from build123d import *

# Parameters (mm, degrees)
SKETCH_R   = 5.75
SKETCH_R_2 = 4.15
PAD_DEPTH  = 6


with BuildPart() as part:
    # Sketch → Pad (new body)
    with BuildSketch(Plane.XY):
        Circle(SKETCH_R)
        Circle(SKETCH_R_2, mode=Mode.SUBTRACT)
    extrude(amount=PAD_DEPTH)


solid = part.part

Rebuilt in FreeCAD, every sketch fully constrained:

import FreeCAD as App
import Part
import Sketcher
from FreeCAD import Vector

doc = App.newDocument("Part")
params = doc.addObject("Spreadsheet::Sheet", "Params")
for row, (alias, value) in enumerate([
    ("sketch1_diameter", "11.5 mm"),
    ("sketch1_diameter2", "8.3 mm"),
    ("pad1_length", "6 mm"),
], start=1):
    params.set(f"A{row}", alias)
    params.set(f"B{row}", "=" + value)
    params.setAlias(f"B{row}", alias)

body = doc.addObject("PartDesign::Body", "Body")

# Sketch on XY plane
sketch1 = body.newObject("Sketcher::SketchObject", "Sketch")
sketch1.AttachmentSupport = (doc.getObject("XY_Plane"), [""])
sketch1.MapMode = "FlatFace"
sketch1.addGeometry([
    Part.Circle(Vector(0, 0, 0), Vector(0, 0, 1), 5.8),
    Part.Circle(Vector(0, 0, 0), Vector(0, 0, 1), 4.2),
], False)
sketch1.addConstraint([
    Sketcher.Constraint("Coincident", 0, 3, -1, 1),
    Sketcher.Constraint("Coincident", 1, 3, -1, 1),
    Sketcher.Constraint("Diameter", 0, 11.5),
    Sketcher.Constraint("Diameter", 1, 8.3),
])
sketch1.setExpression("Constraints[2]", "Params.sketch1_diameter")
sketch1.setExpression("Constraints[3]", "Params.sketch1_diameter2")
pad1 = body.newObject("PartDesign::Pad", "Pad")
pad1.Profile = sketch1
pad1.setExpression("Length", "Params.pad1_length")

doc.recompute()
